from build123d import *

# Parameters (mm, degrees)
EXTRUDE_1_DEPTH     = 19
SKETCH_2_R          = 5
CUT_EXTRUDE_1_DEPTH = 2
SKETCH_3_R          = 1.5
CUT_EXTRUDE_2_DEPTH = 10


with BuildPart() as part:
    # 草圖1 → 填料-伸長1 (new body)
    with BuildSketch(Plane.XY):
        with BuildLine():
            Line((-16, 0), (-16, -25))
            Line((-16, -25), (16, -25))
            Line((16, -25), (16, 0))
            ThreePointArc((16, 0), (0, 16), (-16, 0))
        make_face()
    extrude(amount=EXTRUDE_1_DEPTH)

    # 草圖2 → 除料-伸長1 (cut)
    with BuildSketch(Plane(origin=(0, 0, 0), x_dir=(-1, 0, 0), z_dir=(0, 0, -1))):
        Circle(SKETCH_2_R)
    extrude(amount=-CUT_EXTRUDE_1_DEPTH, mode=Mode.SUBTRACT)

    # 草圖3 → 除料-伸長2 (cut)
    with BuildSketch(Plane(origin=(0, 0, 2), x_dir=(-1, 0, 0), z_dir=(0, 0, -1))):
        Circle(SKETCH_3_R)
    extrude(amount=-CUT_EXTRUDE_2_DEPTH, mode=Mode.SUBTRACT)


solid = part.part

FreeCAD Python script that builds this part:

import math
import FreeCAD as App
import Part
import Sketcher
Q = App.Units.Quantity

doc = App.newDocument("Part")
params = doc.addObject("Spreadsheet::Sheet", "Params")
for row, (alias, value) in enumerate([
    ("sketch1_radius", "16 mm"),
    ("sketch1_height", "25 mm"),
    ("pad1_length", "19 mm"),
    ("sketch2_diameter", "10 mm"),
    ("pocket1_length", "2 mm"),
    ("sketch3_diameter", "3 mm"),
    ("pocket2_length", "10 mm"),
], start=1):
    params.set(f"A{row}", alias)
    params.set(f"B{row}", "=" + value)
    params.setAlias(f"B{row}", alias)

body = doc.addObject("PartDesign::Body", "Body")

sketch1 = body.newObject("Sketcher::SketchObject", "Sketch")
sketch1.AttachmentSupport = (doc.getObject("XY_Plane"), [""])
sketch1.MapMode = "FlatFace"
sketch1.addGeometry(Part.LineSegment(App.Vector(-16, 0, 0), App.Vector(-16, -25, 0)), False)
sketch1.addGeometry(Part.LineSegment(App.Vector(-16, -25, 0), App.Vector(16, -25, 0)), False)
sketch1.addGeometry(Part.LineSegment(App.Vector(16, -25, 0), App.Vector(16, 0, 0)), False)
sketch1.addGeometry(Part.ArcOfCircle(Part.Circle(App.Vector(0, 0, 0), App.Vector(0, 0, 1), 16), math.radians(0), math.radians(180)), False)
sketch1.addConstraint(Sketcher.Constraint("Coincident", 0, 2, 1, 1))
sketch1.addConstraint(Sketcher.Constraint("Coincident", 1, 2, 2, 1))
sketch1.addConstraint(Sketcher.Constraint("Tangent", 2, 2, 3, 1))
sketch1.addConstraint(Sketcher.Constraint("Tangent", 3, 2, 0, 1))
sketch1.addConstraint(Sketcher.Constraint("Vertical", 0))
sketch1.addConstraint(Sketcher.Constraint("Horizontal", 1))
sketch1.addConstraint(Sketcher.Constraint("Vertical", 2))
sketch1.addConstraint(Sketcher.Constraint("Coincident", 3, 3, -1, 1))
sketch1.addConstraint(Sketcher.Constraint("Radius", 3, Q("16 mm")))
sketch1.addConstraint(Sketcher.Constraint("DistanceY", 0, 2, 0, 1, Q("25 mm")))
sketch1.setExpression("Constraints[8]", "Params.sketch1_radius")
sketch1.setExpression("Constraints[9]", "Params.sketch1_height")
pad1 = body.newObject("PartDesign::Pad", "Pad")
pad1.Profile = sketch1
pad1.setExpression("Length", "Params.pad1_length")

sketch2 = body.newObject("Sketcher::SketchObject", "Sketch001")
sketch2.AttachmentSupport = (doc.getObject("XY_Plane"), [""])
sketch2.MapMode = "FlatFace"
sketch2.addGeometry(Part.Circle(App.Vector(0, 0, 0), App.Vector(0, 0, 1), 5), False)
sketch2.addConstraint(Sketcher.Constraint("Coincident", 0, 3, -1, 1))
sketch2.addConstraint(Sketcher.Constraint("Diameter", 0, Q("10 mm")))
sketch2.setExpression("Constraints[1]", "Params.sketch2_diameter")
pocket1 = body.newObject("PartDesign::Pocket", "Pocket")
pocket1.Profile = sketch2
pocket1.setExpression("Length", "Params.pocket1_length")
pocket1.Reversed = True

sketch3 = body.newObject("Sketcher::SketchObject", "Sketch002")
sketch3.AttachmentSupport = (doc.getObject("XY_Plane"), [""])
sketch3.MapMode = "FlatFace"
sketch3.AttachmentOffset = App.Placement(App.Vector(0, 0, 2), App.Rotation())
sketch3.addGeometry(Part.Circle(App.Vector(0, 0, 0), App.Vector(0, 0, 1), 1.5), False)
sketch3.addConstraint(Sketcher.Constraint("Coincident", 0, 3, -1, 1))
sketch3.addConstraint(Sketcher.Constraint("Diameter", 0, Q("3 mm")))
sketch3.setExpression("Constraints[1]", "Params.sketch3_diameter")
pocket2 = body.newObject("PartDesign::Pocket", "Pocket001")
pocket2.Profile = sketch3
pocket2.setExpression("Length", "Params.pocket2_length")
pocket2.Reversed = True

doc.recompute()
